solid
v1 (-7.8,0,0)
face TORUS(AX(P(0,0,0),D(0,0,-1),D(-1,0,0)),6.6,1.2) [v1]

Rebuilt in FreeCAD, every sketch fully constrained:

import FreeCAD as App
import Part
import Sketcher

V = App.Vector

doc = App.newDocument("Part")
body = doc.addObject("PartDesign::Body", "Body")

# Sketch on XZ plane
sketch1 = body.newObject("Sketcher::SketchObject", "Sketch")
sketch1.AttachmentSupport = (doc.getObject("XZ_Plane"), [""])
sketch1.MapMode = "FlatFace"
sketch1.addGeometry(Part.Circle(V(-6.6, 0, 0), V(0, 0, 1), 1.2), False)
sketch1.addConstraint(Sketcher.Constraint("PointOnObject", 0, 3, -1))
sketch1.addConstraint(Sketcher.Constraint("Diameter", 0, 2.4))
sketch1.addConstraint(Sketcher.Constraint("DistanceX", 0, 3, -1, 1, 6.6))

# Sketch on XY plane
sketch2 = body.newObject("Sketcher::SketchObject", "Sketch001")
sketch2.AttachmentSupport = (doc.getObject("XY_Plane"), [""])
sketch2.MapMode = "FlatFace"
sketch2.addGeometry(Part.Circle(V(0, 0, 0), V(0, 0, 1), 5.4), False)
sketch2.addConstraint(Sketcher.Constraint("Coincident", 0, 3, -1, 1))
sketch2.addConstraint(Sketcher.Constraint("Diameter", 0, 10.8))
doc.recompute()

additivepipe = body.newObject("PartDesign::AdditivePipe", "AdditivePipe")
additivepipe.Profile = sketch1
additivepipe.Spine = (sketch2, ["Edge1"])

doc.recompute()
